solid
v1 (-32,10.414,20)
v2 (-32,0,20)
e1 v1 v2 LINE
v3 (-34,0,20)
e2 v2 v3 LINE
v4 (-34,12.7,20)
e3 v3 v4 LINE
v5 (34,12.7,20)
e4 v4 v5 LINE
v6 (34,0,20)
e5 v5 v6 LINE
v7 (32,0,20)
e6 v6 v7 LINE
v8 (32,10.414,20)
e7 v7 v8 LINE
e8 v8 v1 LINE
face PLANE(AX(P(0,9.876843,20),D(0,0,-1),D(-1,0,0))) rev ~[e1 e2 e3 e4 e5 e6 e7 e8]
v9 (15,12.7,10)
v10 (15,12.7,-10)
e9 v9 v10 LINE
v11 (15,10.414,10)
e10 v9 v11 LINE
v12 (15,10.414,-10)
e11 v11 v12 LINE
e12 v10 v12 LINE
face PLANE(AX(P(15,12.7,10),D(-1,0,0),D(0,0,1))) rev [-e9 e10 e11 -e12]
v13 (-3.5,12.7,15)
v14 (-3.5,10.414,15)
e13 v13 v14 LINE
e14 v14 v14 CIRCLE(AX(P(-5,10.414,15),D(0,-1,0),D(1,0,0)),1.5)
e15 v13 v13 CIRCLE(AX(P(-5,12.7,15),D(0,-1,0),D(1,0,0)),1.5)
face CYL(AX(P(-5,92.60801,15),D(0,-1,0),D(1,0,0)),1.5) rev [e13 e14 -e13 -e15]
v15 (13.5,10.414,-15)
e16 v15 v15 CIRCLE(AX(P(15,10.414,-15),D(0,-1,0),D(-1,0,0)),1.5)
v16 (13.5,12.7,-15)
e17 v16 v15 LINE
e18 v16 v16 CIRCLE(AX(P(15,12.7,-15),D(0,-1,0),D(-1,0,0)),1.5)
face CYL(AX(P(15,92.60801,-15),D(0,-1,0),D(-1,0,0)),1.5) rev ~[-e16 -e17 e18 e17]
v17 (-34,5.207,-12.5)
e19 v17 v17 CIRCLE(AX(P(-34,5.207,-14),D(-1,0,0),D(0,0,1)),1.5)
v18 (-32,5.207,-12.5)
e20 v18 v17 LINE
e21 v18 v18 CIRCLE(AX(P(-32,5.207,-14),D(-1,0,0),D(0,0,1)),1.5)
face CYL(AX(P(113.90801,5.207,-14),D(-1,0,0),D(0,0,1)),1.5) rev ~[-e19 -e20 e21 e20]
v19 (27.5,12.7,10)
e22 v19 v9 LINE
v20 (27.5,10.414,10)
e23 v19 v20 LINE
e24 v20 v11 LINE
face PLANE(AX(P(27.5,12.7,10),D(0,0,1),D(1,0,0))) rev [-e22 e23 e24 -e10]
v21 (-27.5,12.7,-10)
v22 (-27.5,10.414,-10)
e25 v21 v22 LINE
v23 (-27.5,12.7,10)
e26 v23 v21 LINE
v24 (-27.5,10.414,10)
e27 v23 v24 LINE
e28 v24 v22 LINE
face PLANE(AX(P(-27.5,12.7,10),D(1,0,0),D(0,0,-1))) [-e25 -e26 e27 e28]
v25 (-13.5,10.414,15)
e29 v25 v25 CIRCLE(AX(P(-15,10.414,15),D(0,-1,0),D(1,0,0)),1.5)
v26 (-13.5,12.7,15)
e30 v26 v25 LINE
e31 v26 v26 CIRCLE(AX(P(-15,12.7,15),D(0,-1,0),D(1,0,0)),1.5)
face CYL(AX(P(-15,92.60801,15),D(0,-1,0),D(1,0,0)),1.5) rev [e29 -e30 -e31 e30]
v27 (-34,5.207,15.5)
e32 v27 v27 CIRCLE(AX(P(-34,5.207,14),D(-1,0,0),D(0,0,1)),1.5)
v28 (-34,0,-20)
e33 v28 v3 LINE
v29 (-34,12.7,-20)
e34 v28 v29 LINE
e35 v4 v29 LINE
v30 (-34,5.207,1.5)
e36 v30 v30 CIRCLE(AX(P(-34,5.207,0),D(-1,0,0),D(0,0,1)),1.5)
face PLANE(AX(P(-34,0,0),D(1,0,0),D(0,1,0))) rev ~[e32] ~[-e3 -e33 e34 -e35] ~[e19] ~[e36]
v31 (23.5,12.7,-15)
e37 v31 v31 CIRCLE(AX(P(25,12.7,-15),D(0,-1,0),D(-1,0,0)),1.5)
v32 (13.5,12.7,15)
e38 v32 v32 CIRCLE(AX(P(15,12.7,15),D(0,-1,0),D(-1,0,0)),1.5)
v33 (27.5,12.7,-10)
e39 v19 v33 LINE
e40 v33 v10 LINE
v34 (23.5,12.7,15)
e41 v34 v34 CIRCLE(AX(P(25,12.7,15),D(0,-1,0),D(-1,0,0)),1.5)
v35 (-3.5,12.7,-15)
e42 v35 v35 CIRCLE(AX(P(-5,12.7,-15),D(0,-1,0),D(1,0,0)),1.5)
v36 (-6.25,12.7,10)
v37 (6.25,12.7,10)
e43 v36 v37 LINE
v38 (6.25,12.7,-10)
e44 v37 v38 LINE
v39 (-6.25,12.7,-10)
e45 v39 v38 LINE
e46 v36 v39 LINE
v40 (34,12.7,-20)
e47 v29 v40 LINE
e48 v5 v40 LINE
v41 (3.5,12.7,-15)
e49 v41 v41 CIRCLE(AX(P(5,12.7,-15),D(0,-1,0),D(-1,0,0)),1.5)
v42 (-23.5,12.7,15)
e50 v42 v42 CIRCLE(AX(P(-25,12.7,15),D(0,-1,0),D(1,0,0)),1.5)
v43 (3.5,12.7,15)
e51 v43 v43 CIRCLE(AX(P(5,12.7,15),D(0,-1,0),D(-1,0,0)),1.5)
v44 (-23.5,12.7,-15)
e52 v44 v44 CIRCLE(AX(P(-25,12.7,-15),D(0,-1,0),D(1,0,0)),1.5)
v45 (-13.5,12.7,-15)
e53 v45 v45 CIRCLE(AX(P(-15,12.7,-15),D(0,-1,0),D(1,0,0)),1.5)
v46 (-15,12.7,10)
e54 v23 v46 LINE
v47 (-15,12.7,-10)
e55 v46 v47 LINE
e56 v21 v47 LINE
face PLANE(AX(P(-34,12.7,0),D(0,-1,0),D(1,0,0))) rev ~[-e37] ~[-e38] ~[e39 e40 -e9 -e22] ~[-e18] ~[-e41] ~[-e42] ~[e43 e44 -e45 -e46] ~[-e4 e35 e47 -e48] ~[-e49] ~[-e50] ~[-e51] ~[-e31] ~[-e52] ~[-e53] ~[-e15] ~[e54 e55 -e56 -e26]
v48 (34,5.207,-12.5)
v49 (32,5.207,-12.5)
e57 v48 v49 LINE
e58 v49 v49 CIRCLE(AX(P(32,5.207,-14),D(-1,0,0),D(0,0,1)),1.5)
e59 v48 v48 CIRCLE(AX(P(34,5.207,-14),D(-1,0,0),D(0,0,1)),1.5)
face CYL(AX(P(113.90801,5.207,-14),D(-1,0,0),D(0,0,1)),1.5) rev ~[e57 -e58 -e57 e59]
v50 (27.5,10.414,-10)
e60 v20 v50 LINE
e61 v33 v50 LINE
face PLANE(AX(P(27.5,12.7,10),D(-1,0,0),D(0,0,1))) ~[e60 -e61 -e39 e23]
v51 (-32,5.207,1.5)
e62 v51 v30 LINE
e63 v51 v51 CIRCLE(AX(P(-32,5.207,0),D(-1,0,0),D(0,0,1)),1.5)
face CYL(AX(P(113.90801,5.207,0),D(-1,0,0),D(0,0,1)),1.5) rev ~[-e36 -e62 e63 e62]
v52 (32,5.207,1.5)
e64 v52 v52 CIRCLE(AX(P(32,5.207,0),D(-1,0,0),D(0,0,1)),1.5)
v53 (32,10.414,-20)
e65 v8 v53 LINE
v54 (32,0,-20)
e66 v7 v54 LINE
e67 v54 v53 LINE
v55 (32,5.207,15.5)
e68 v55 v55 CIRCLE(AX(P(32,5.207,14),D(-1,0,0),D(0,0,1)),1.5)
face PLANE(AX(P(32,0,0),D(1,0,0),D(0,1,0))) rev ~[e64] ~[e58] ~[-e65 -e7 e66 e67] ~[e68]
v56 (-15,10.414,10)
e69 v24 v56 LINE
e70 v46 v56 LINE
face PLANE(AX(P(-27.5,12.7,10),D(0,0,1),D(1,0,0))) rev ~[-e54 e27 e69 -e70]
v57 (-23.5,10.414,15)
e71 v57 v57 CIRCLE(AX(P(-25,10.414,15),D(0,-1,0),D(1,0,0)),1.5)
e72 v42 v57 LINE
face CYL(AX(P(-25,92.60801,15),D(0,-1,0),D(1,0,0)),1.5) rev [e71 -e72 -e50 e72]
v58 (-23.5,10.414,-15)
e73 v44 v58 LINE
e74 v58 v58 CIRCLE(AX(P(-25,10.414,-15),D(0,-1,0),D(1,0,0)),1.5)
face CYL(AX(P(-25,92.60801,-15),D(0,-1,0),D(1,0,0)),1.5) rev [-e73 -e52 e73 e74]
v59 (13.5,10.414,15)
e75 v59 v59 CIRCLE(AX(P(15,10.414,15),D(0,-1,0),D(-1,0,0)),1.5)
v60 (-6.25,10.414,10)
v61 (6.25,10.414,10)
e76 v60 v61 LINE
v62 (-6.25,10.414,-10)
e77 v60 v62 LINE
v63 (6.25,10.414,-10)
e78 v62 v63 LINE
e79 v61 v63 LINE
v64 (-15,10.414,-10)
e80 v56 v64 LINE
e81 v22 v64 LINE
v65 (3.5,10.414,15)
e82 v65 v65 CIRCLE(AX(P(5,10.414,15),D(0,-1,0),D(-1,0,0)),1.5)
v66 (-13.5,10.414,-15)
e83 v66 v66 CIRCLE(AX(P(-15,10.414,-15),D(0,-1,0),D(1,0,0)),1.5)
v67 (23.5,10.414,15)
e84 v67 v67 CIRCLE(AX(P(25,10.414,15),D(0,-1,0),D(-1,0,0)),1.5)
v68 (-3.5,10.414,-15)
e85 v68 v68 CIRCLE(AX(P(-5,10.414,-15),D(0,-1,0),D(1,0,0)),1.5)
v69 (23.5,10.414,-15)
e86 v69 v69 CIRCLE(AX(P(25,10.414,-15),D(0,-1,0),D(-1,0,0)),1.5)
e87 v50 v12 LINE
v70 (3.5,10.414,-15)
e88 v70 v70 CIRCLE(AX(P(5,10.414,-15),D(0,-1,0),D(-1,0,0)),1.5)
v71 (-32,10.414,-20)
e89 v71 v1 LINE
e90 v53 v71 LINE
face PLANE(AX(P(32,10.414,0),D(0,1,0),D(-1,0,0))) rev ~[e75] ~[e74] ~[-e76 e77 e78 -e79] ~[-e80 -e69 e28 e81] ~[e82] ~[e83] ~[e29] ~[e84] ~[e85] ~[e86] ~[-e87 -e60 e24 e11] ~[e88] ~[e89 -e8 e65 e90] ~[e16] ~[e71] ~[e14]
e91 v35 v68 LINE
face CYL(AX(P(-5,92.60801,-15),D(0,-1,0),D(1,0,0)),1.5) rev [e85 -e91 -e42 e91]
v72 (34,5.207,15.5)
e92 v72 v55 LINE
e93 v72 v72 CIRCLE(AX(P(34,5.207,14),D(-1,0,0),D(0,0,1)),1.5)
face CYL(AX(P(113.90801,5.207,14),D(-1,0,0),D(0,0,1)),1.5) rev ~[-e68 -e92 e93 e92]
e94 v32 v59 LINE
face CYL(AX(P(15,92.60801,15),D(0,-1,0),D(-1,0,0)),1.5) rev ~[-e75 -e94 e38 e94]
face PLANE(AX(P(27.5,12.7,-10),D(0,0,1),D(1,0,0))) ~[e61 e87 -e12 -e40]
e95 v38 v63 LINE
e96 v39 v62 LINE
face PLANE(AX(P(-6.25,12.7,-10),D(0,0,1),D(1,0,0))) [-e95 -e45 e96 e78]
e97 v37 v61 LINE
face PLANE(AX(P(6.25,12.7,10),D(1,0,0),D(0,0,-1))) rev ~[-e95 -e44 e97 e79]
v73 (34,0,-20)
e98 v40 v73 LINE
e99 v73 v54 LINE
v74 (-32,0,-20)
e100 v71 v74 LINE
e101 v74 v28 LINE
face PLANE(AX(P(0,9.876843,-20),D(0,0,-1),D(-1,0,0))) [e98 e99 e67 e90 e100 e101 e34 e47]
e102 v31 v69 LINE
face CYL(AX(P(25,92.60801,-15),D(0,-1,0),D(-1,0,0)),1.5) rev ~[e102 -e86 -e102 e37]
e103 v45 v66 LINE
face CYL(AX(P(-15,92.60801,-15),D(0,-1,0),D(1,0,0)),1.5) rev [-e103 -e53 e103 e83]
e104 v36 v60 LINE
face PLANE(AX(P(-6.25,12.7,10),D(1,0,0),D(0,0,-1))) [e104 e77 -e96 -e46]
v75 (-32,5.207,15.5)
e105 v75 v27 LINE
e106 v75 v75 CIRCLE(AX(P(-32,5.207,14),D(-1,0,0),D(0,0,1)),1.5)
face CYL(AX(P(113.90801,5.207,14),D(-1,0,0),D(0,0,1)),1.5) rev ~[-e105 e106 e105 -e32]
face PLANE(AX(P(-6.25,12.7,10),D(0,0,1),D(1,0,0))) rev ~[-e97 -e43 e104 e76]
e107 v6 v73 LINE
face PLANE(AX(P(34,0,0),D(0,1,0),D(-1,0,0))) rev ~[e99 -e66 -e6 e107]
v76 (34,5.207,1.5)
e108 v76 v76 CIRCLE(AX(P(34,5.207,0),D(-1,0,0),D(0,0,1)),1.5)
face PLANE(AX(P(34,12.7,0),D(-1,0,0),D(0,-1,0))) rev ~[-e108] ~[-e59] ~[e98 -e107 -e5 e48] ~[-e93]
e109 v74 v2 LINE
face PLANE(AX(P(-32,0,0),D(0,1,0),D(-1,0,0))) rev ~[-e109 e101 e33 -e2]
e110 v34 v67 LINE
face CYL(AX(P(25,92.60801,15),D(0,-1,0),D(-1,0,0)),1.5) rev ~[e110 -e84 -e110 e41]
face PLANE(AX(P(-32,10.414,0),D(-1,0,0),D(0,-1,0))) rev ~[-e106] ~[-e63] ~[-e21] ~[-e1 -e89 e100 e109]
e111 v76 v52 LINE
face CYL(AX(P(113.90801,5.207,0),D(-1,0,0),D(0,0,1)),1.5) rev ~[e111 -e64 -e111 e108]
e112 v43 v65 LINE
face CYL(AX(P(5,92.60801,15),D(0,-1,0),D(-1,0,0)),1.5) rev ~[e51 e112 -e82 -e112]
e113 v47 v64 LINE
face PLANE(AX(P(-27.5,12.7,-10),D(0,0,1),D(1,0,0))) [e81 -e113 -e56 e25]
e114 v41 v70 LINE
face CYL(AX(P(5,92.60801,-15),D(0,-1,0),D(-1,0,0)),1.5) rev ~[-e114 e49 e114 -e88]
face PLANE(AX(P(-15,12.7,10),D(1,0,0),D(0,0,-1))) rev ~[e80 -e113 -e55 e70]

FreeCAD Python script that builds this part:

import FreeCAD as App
import Part
import Sketcher
Q = App.Units.Quantity

doc = App.newDocument("Part")
body = doc.addObject("PartDesign::Body", "Body")

# Sketch on XY plane
sketch1 = body.newObject("Sketcher::SketchObject", "Sketch")
sketch1.AttachmentSupport = (doc.getObject("XY_Plane"), [""])
sketch1.MapMode = "FlatFace"
sketch1.addGeometry(Part.LineSegment(App.Vector(-34, 12.7, 0), App.Vector(-34, 0, 0)), False)
sketch1.addGeometry(Part.LineSegment(App.Vector(-34, 0, 0), App.Vector(-32, 0, 0)), False)
sketch1.addGeometry(Part.LineSegment(App.Vector(-32, 0, 0), App.Vector(-32, 10.414, 0)), False)
sketch1.addGeometry(Part.LineSegment(App.Vector(-32, 10.414, 0), App.Vector(32, 10.414, 0)), False)
sketch1.addGeometry(Part.LineSegment(App.Vector(32, 10.414, 0), App.Vector(32, 0, 0)), False)
sketch1.addGeometry(Part.LineSegment(App.Vector(32, 0, 0), App.Vector(34, 0, 0)), False)
sketch1.addGeometry(Part.LineSegment(App.Vector(34, 0, 0), App.Vector(34, 12.7, 0)), False)
sketch1.addGeometry(Part.LineSegment(App.Vector(34, 12.7, 0), App.Vector(-34, 12.7, 0)), False)
sketch1.addConstraint(Sketcher.Constraint("Coincident", 0, 2, 1, 1))
sketch1.addConstraint(Sketcher.Constraint("Coincident", 1, 2, 2, 1))
sketch1.addConstraint(Sketcher.Constraint("Coincident", 2, 2, 3, 1))
sketch1.addConstraint(Sketcher.Constraint("Coincident", 3, 2, 4, 1))
sketch1.addConstraint(Sketcher.Constraint("Coincident", 4, 2, 5, 1))
sketch1.addConstraint(Sketcher.Constraint("Coincident", 5, 2, 6, 1))
sketch1.addConstraint(Sketcher.Constraint("Coincident", 6, 2, 7, 1))
sketch1.addConstraint(Sketcher.Constraint("Coincident", 7, 2, 0, 1))
sketch1.addConstraint(Sketcher.Constraint("Vertical", 0))
sketch1.addConstraint(Sketcher.Constraint("Horizontal", 1))
sketch1.addConstraint(Sketcher.Constraint("Vertical", 2))
sketch1.addConstraint(Sketcher.Constraint("Horizontal", 3))
sketch1.addConstraint(Sketcher.Constraint("Vertical", 4))
sketch1.addConstraint(Sketcher.Constraint("Horizontal", 5))
sketch1.addConstraint(Sketcher.Constraint("Vertical", 6))
sketch1.addConstraint(Sketcher.Constraint("Horizontal", 7))
sketch1.addConstraint(Sketcher.Constraint("Symmetric", 1, 2, 4, 2, -1, 1))
sketch1.addConstraint(Sketcher.Constraint("Symmetric", 0, 2, 5, 2, -2))
sketch1.addConstraint(Sketcher.Constraint("DistanceX", 1, 1, 1, 2, Q("2 mm")))
sketch1.addConstraint(Sketcher.Constraint("DistanceX", 3, 1, 3, 2, Q("64 mm")))
sketch1.addConstraint(Sketcher.Constraint("DistanceY", 0, 2, 0, 1, Q("12.7 mm")))
sketch1.addConstraint(Sketcher.Constraint("DistanceY", 2, 1, 2, 2, Q("10.414 mm")))
pad1 = body.newObject("PartDesign::Pad", "Pad")
pad1.Profile = sketch1
pad1.Length = 40
pad1.Midplane = True

# Sketch on YZ plane
sketch2 = body.newObject("Sketcher::SketchObject", "Sketch001")
sketch2.AttachmentSupport = (doc.getObject("YZ_Plane"), [""])
sketch2.MapMode = "FlatFace"
sketch2.AttachmentOffset = App.Placement(App.Vector(0, 0, 34), App.Rotation())
sketch2.addGeometry(Part.Circle(App.Vector(5.207, 14, 0), App.Vector(0, 0, 1), 1.5), False)
sketch2.addGeometry(Part.Circle(App.Vector(5.207, -14, 0), App.Vector(0, 0, 1), 1.5), False)
sketch2.addGeometry(Part.Circle(App.Vector(5.207, 0, 0), App.Vector(0, 0, 1), 1.5), False)
sketch2.addConstraint(Sketcher.Constraint("Equal", 0, 1))
sketch2.addConstraint(Sketcher.Constraint("Equal", 1, 2))
sketch2.addConstraint(Sketcher.Constraint("Symmetric", 0, 3, 1, 3, -1))
sketch2.addConstraint(Sketcher.Constraint("PointOnObject", 2, 3, -1))
sketch2.addConstraint(Sketcher.Constraint("Vertical", 1, 3, 2, 3))
sketch2.addConstraint(Sketcher.Constraint("Diameter", 0, Q("3 mm")))
sketch2.addConstraint(Sketcher.Constraint("DistanceY", -1, 1, 0, 3, Q("14 mm")))
sketch2.addConstraint(Sketcher.Constraint("DistanceX", -1, 1, 0, 3, Q("5.207 mm")))
doc.recompute()
hole = body.newObject("PartDesign::Hole", "Hole")
hole.Profile = sketch2
hole.ThreadType = "None"
hole.Diameter = 3
hole.DepthType = "ThroughAll"

# Sketch on XZ plane
sketch3 = body.newObject("Sketcher::SketchObject", "Sketch002")
sketch3.AttachmentSupport = (doc.getObject("XZ_Plane"), [""])
sketch3.MapMode = "FlatFace"
sketch3.AttachmentOffset = App.Placement(App.Vector(0, 0, -12.7), App.Rotation())
sketch3.addGeometry(Part.Circle(App.Vector(25, 15, 0), App.Vector(0, 0, 1), 1.5), False)
sketch3.addGeometry(Part.Circle(App.Vector(15, 15, 0), App.Vector(0, 0, 1), 1.5), False)
sketch3.addGeometry(Part.Circle(App.Vector(5, 15, 0), App.Vector(0, 0, 1), 1.5), False)
sketch3.addGeometry(Part.Circle(App.Vector(25, -15, 0), App.Vector(0, 0, 1), 1.5), False)
sketch3.addGeometry(Part.Circle(App.Vector(15, -15, 0), App.Vector(0, 0, 1), 1.5), False)
sketch3.addGeometry(Part.Circle(App.Vector(5, -15, 0), App.Vector(0, 0, 1), 1.5), False)
sketch3.addConstraint(Sketcher.Constraint("Equal", 0, 1))
sketch3.addConstraint(Sketcher.Constraint("Equal", 1, 2))
sketch3.addConstraint(Sketcher.Constraint("Equal", 2, 3))
sketch3.addConstraint(Sketcher.Constraint("Equal", 3, 4))
sketch3.addConstraint(Sketcher.Constraint("Equal", 4, 5))
sketch3.addConstraint(Sketcher.Constraint("Symmetric", 0, 3, 3, 3, -1))
sketch3.addConstraint(Sketcher.Constraint("Symmetric", 1, 3, 4, 3, -1))
sketch3.addConstraint(Sketcher.Constraint("Symmetric", 2, 3, 5, 3, -1))
sketch3.addConstraint(Sketcher.Constraint("Horizontal", 0, 3, 1, 3))
sketch3.addConstraint(Sketcher.Constraint("Horizontal", 1, 3, 2, 3))
sketch3.addConstraint(Sketcher.Constraint("Diameter", 0, Q("3 mm")))
sketch3.addConstraint(Sketcher.Constraint("DistanceX", -1, 1, 0, 3, Q("25 mm")))
sketch3.addConstraint(Sketcher.Constraint("DistanceY", -1, 1, 0, 3, Q("15 mm")))
sketch3.addConstraint(Sketcher.Constraint("DistanceX", -1, 1, 1, 3, Q("15 mm")))
sketch3.addConstraint(Sketcher.Constraint("DistanceX", -1, 1, 2, 3, Q("5 mm")))
doc.recompute()
hole2 = body.newObject("PartDesign::Hole", "Hole001")
hole2.Profile = sketch3
hole2.ThreadType = "None"
hole2.Diameter = 3
hole2.DepthType = "ThroughAll"
hole2.Reversed = True

# Sketch on XZ plane
sketch4 = body.newObject("Sketcher::SketchObject", "Sketch003")
sketch4.AttachmentSupport = (doc.getObject("XZ_Plane"), [""])
sketch4.MapMode = "FlatFace"
sketch4.AttachmentOffset = App.Placement(App.Vector(0, 0, -12.7), App.Rotation())
sketch4.addGeometry(Part.LineSegment(App.Vector(-27.5, -10, 0), App.Vector(-27.5, 10, 0)), False)
sketch4.addGeometry(Part.LineSegment(App.Vector(-27.5, 10, 0), App.Vector(-15, 10, 0)), False)
sketch4.addGeometry(Part.LineSegment(App.Vector(-15, 10, 0), App.Vector(-15, -10, 0)), False)
sketch4.addGeometry(Part.LineSegment(App.Vector(-15, -10, 0), App.Vector(-27.5, -10, 0)), False)
sketch4.addConstraint(Sketcher.Constraint("Coincident", 0, 2, 1, 1))
sketch4.addConstraint(Sketcher.Constraint("Coincident", 1, 2, 2, 1))
sketch4.addConstraint(Sketcher.Constraint("Coincident", 2, 2, 3, 1))
sketch4.addConstraint(Sketcher.Constraint("Coincident", 3, 2, 0, 1))
sketch4.addConstraint(Sketcher.Constraint("Vertical", 0))
sketch4.addConstraint(Sketcher.Constraint("Horizontal", 1))
sketch4.addConstraint(Sketcher.Constraint("Vertical", 2))
sketch4.addConstraint(Sketcher.Constraint("Horizontal", 3))
sketch4.addConstraint(Sketcher.Constraint("DistanceY", 0, 1, 0, 2, Q("20 mm")))
sketch4.addConstraint(Sketcher.Constraint("DistanceX", 1, 1, 1, 2, Q("12.5 mm")))
sketch4.addConstraint(Sketcher.Constraint("DistanceY", -1, 1, 0, 2, Q("10 mm")))
sketch4.addConstraint(Sketcher.Constraint("DistanceX", 1, 2, -1, 1, Q("15 mm")))
pocket1 = body.newObject("PartDesign::Pocket", "Pocket")
pocket1.Profile = sketch4
pocket1.Length = 10
pocket1.Reversed = True
doc.recompute()

mirrored = body.newObject("PartDesign::Mirrored", "Mirrored")
mirrored.Originals = [pocket1]
mirrored.MirrorPlane = (doc.getObject("YZ_Plane"), [""])
body.Tip = mirrored

# Sketch on XZ plane
sketch5 = body.newObject("Sketcher::SketchObject", "Sketch004")
sketch5.AttachmentSupport = (doc.getObject("XZ_Plane"), [""])
sketch5.MapMode = "FlatFace"
sketch5.AttachmentOffset = App.Placement(App.Vector(0, 0, -12.7), App.Rotation())
sketch5.addGeometry(Part.LineSegment(App.Vector(-6.25, -10, 0), App.Vector(-6.25, 10, 0)), False)
sketch5.addGeometry(Part.LineSegment(App.Vector(-6.25, 10, 0), App.Vector(6.25, 10, 0)), False)
sketch5.addGeometry(Part.LineSegment(App.Vector(6.25, 10, 0), App.Vector(6.25, -10, 0)), False)
sketch5.addGeometry(Part.LineSegment(App.Vector(6.25, -10, 0), App.Vector(-6.25, -10, 0)), False)
sketch5.addConstraint(Sketcher.Constraint("Coincident", 0, 2, 1, 1))
sketch5.addConstraint(Sketcher.Constraint("Coincident", 1, 2, 2, 1))
sketch5.addConstraint(Sketcher.Constraint("Coincident", 2, 2, 3, 1))
sketch5.addConstraint(Sketcher.Constraint("Coincident", 3, 2, 0, 1))
sketch5.addConstraint(Sketcher.Constraint("Vertical", 0))
sketch5.addConstraint(Sketcher.Constraint("Horizontal", 1))
sketch5.addConstraint(Sketcher.Constraint("Vertical", 2))
sketch5.addConstraint(Sketcher.Constraint("Horizontal", 3))
sketch5.addConstraint(Sketcher.Constraint("Symmetric", 0, 2, 2, 2, -1, 1))
sketch5.addConstraint(Sketcher.Constraint("DistanceY", 0, 1, 0, 2, Q("20 mm")))
sketch5.addConstraint(Sketcher.Constraint("DistanceX", 1, 1, 1, 2, Q("12.5 mm")))
pocket2 = body.newObject("PartDesign::Pocket", "Pocket001")
pocket2.Profile = sketch5
pocket2.Length = 10
pocket2.Reversed = True
doc.recompute()

mirrored2 = body.newObject("PartDesign::Mirrored", "Mirrored001")
mirrored2.Originals = [hole2]
mirrored2.MirrorPlane = (doc.getObject("YZ_Plane"), [""])
body.Tip = mirrored2

doc.recompute()
